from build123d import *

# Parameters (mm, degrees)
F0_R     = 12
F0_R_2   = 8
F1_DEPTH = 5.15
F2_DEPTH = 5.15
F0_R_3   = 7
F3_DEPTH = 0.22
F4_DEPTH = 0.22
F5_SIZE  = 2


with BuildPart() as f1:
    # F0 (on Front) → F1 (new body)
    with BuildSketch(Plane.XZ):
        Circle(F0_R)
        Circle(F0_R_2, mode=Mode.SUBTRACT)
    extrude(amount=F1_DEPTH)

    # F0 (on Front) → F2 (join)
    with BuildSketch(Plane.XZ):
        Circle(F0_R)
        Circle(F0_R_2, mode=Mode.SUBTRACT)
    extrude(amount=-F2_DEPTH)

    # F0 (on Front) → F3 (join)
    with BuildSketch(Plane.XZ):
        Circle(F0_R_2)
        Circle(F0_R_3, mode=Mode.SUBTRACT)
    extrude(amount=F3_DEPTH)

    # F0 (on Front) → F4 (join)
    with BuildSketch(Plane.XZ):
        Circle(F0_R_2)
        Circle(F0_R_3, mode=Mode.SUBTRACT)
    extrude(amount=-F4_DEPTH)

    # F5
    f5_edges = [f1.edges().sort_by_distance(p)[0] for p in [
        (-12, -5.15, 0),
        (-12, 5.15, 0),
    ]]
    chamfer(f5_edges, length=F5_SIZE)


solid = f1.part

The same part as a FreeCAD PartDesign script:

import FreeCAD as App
import Part
import Sketcher
from FreeCAD import Vector


def edges_at(feature, points):
    """Names of the edges that pass closest to the given points."""
    edges = feature.Shape.Edges
    near = lambda p: min(range(len(edges)), key=lambda i: edges[i].distToShape(Part.Vertex(*p))[0])
    return sorted({f"Edge{near(p) + 1}" for p in points})

doc = App.newDocument("Part")
body = doc.addObject("PartDesign::Body", "Body")

# Sketch on XZ plane
sketch1 = body.newObject("Sketcher::SketchObject", "Sketch")
sketch1.AttachmentSupport = (doc.getObject("XZ_Plane"), [""])
sketch1.MapMode = "FlatFace"
sketch1.addGeometry(Part.Circle(Vector(0, 0, 0), Vector(0, 0, 1), 12), False)
sketch1.addGeometry(Part.Circle(Vector(0, 0, 0), Vector(0, 0, 1), 8), False)
sketch1.addConstraint(Sketcher.Constraint("Coincident", 0, 3, -1, 1))
sketch1.addConstraint(Sketcher.Constraint("Coincident", 1, 3, -1, 1))
sketch1.addConstraint(Sketcher.Constraint("Diameter", 0, 24.0))
sketch1.addConstraint(Sketcher.Constraint("Diameter", 1, 16.0))
pad1 = body.newObject("PartDesign::Pad", "Pad")
pad1.Profile = sketch1
pad1.Length = 5.15

# Sketch on XZ plane
sketch2 = body.newObject("Sketcher::SketchObject", "Sketch001")
sketch2.AttachmentSupport = (doc.getObject("XZ_Plane"), [""])
sketch2.MapMode = "FlatFace"
sketch2.addGeometry(Part.Circle(Vector(0, 0, 0), Vector(0, 0, 1), 12), False)
sketch2.addGeometry(Part.Circle(Vector(0, 0, 0), Vector(0, 0, 1), 8), False)
sketch2.addConstraint(Sketcher.Constraint("Coincident", 0, 3, -1, 1))
sketch2.addConstraint(Sketcher.Constraint("Coincident", 1, 3, -1, 1))
sketch2.addConstraint(Sketcher.Constraint("Diameter", 0, 24.0))
sketch2.addConstraint(Sketcher.Constraint("Diameter", 1, 16.0))
pad2 = body.newObject("PartDesign::Pad", "Pad001")
pad2.Profile = sketch2
pad2.Length = 5.15
pad2.Reversed = True

# Sketch on XZ plane
sketch3 = body.newObject("Sketcher::SketchObject", "Sketch002")
sketch3.AttachmentSupport = (doc.getObject("XZ_Plane"), [""])
sketch3.MapMode = "FlatFace"
sketch3.addGeometry(Part.Circle(Vector(0, 0, 0), Vector(0, 0, 1), 8), False)
sketch3.addGeometry(Part.Circle(Vector(0, 0, 0), Vector(0, 0, 1), 7), False)
sketch3.addConstraint(Sketcher.Constraint("Coincident", 0, 3, -1, 1))
sketch3.addConstraint(Sketcher.Constraint("Coincident", 1, 3, -1, 1))
sketch3.addConstraint(Sketcher.Constraint("Diameter", 0, 16.0))
sketch3.addConstraint(Sketcher.Constraint("Diameter", 1, 14.0))
pad3 = body.newObject("PartDesign::Pad", "Pad002")
pad3.Profile = sketch3
pad3.Length = 0.22

# Sketch on XZ plane
sketch4 = body.newObject("Sketcher::SketchObject", "Sketch003")
sketch4.AttachmentSupport = (doc.getObject("XZ_Plane"), [""])
sketch4.MapMode = "FlatFace"
sketch4.addGeometry(Part.Circle(Vector(0, 0, 0), Vector(0, 0, 1), 8), False)
sketch4.addGeometry(Part.Circle(Vector(0, 0, 0), Vector(0, 0, 1), 7), False)
sketch4.addConstraint(Sketcher.Constraint("Coincident", 0, 3, -1, 1))
sketch4.addConstraint(Sketcher.Constraint("Coincident", 1, 3, -1, 1))
sketch4.addConstraint(Sketcher.Constraint("Diameter", 0, 16.0))
sketch4.addConstraint(Sketcher.Constraint("Diameter", 1, 14.0))
pad4 = body.newObject("PartDesign::Pad", "Pad003")
pad4.Profile = sketch4
pad4.Length = 0.22
pad4.Reversed = True
doc.recompute()

chamfer = body.newObject("PartDesign::Chamfer", "Chamfer")
chamfer.Base = (pad4, edges_at(pad4, [(-12, -5.15, 0), (-12, 5.15, 0)]))
chamfer.Size = 2

doc.recompute()
